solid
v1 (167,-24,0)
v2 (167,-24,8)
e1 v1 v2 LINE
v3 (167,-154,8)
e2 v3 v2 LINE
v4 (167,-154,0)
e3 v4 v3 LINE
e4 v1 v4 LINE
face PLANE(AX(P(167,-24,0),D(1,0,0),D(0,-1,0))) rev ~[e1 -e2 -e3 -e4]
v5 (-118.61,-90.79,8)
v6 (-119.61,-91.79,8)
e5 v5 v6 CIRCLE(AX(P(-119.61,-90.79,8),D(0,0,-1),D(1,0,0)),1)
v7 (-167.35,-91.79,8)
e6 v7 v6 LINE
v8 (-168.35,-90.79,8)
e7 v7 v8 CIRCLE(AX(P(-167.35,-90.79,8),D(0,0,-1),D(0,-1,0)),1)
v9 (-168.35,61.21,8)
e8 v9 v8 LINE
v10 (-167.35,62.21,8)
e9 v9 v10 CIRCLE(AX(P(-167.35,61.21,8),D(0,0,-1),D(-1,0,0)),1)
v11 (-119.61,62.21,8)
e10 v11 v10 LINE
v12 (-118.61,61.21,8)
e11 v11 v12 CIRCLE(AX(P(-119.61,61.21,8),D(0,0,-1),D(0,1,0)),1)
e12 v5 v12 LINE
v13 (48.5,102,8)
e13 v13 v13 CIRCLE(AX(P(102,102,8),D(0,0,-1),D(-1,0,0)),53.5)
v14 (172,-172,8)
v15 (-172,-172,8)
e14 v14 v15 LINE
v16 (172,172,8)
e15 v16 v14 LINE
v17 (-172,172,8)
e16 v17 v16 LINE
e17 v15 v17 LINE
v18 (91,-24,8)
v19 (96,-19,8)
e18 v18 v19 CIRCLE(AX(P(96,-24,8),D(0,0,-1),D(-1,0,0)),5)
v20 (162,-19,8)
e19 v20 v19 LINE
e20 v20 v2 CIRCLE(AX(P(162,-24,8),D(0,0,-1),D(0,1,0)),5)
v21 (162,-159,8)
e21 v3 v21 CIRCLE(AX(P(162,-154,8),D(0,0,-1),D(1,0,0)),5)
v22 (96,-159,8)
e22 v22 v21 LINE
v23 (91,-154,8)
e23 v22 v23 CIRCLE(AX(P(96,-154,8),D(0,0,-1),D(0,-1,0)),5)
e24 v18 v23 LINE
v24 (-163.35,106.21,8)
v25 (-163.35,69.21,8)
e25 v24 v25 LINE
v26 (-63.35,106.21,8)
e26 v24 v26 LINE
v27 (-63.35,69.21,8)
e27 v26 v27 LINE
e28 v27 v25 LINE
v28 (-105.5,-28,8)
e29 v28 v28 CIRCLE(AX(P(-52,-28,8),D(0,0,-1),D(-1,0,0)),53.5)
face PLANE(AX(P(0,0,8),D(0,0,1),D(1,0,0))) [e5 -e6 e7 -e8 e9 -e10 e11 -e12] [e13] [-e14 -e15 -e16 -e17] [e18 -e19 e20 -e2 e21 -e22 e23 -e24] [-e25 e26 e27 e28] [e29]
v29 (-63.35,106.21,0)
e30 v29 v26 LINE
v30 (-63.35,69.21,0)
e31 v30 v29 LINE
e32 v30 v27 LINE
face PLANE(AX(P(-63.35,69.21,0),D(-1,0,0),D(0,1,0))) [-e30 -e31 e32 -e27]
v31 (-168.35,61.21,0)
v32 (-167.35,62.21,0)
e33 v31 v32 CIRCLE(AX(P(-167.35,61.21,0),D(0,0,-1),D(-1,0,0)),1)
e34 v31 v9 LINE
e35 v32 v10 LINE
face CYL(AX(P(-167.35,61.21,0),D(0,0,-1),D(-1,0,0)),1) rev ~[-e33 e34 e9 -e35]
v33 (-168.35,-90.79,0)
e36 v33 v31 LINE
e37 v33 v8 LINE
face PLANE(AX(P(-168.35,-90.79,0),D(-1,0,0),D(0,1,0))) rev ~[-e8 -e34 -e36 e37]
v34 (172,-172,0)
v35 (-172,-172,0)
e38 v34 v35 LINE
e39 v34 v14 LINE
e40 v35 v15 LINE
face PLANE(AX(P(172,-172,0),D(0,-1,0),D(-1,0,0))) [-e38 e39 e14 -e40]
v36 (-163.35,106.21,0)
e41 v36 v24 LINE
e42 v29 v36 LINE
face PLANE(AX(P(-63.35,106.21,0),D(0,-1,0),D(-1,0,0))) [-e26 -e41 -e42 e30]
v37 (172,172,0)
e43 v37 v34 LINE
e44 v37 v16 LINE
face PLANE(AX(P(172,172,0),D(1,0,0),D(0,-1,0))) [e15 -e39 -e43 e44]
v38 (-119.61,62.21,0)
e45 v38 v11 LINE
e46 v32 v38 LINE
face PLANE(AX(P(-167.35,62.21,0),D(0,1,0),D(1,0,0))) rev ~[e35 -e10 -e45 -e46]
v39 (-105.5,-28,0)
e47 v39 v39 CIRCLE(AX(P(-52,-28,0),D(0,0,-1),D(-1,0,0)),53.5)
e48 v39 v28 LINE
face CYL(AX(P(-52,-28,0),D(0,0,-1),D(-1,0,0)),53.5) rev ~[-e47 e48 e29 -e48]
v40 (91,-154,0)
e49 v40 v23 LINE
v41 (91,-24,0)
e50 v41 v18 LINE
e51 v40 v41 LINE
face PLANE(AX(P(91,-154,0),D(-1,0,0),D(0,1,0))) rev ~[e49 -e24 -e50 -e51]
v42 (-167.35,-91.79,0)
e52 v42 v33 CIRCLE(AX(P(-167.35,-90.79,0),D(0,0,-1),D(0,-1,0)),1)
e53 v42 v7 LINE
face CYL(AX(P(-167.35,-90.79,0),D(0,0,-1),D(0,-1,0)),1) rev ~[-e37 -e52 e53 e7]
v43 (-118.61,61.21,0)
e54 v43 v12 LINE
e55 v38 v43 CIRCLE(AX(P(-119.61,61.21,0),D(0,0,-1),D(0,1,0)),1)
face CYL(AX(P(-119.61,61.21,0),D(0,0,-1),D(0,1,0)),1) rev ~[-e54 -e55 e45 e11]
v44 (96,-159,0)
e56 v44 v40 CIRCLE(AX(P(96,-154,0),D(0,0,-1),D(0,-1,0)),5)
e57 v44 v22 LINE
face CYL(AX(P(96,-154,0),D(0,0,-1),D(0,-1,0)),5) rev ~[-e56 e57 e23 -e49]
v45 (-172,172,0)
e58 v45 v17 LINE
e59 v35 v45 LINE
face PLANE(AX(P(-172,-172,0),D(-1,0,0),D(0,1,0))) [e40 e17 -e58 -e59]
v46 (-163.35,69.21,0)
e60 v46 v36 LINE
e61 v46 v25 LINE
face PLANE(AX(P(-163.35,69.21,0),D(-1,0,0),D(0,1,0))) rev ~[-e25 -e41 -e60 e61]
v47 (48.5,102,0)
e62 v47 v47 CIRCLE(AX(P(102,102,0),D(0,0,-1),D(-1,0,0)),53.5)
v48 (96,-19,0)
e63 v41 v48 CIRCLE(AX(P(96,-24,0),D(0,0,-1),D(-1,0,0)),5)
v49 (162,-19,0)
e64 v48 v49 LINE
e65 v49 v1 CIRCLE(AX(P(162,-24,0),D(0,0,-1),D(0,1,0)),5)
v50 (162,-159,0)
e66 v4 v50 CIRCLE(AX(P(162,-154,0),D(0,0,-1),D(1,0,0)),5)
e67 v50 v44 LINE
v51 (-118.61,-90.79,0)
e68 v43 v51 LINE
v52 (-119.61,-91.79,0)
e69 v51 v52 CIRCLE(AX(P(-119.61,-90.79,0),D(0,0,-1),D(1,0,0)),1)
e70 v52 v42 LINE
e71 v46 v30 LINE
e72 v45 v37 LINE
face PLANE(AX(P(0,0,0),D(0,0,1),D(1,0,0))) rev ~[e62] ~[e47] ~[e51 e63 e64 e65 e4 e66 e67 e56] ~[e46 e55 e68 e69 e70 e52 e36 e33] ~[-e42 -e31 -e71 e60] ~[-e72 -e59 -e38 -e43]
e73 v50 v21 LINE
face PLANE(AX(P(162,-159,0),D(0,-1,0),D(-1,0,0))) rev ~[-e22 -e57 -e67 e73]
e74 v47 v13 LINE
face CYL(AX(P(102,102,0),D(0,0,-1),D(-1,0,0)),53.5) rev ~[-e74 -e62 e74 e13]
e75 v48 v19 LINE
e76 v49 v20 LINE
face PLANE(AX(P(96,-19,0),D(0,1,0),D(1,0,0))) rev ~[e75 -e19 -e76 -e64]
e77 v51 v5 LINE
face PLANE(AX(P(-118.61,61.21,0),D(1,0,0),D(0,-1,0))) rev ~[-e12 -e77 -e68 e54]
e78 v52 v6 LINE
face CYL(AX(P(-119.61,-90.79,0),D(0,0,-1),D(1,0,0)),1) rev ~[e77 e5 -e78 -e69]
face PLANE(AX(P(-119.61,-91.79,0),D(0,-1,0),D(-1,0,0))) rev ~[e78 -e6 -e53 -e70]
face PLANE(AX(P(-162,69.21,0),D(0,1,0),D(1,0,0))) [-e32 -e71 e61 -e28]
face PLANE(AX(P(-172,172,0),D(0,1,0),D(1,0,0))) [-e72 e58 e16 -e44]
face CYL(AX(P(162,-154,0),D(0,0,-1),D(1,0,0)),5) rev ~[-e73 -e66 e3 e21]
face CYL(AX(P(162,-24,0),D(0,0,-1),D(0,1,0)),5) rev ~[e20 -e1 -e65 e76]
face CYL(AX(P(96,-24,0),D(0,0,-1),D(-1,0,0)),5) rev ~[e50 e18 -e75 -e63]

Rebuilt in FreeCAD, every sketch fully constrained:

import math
import FreeCAD as App
import Part
import Sketcher
from FreeCAD import Vector
Q = App.Units.Quantity

doc = App.newDocument("Part")
body = doc.addObject("PartDesign::Body", "Body")

# Sketch on XY plane
sketch1 = body.newObject("Sketcher::SketchObject", "Sketch")
sketch1.AttachmentSupport = (doc.getObject("XY_Plane"), [""])
sketch1.MapMode = "FlatFace"
sketch1.addGeometry(Part.LineSegment(Vector(172, 172, 0), Vector(-172, 172, 0)), False)
sketch1.addGeometry(Part.LineSegment(Vector(-172, 172, 0), Vector(-172, -172, 0)), False)
sketch1.addGeometry(Part.LineSegment(Vector(-172, -172, 0), Vector(172, -172, 0)), False)
sketch1.addGeometry(Part.LineSegment(Vector(172, -172, 0), Vector(172, 172, 0)), False)
sketch1.addConstraint(Sketcher.Constraint("Coincident", 0, 2, 1, 1))
sketch1.addConstraint(Sketcher.Constraint("Coincident", 1, 2, 2, 1))
sketch1.addConstraint(Sketcher.Constraint("Coincident", 2, 2, 3, 1))
sketch1.addConstraint(Sketcher.Constraint("Coincident", 3, 2, 0, 1))
sketch1.addConstraint(Sketcher.Constraint("Horizontal", 0))
sketch1.addConstraint(Sketcher.Constraint("Vertical", 1))
sketch1.addConstraint(Sketcher.Constraint("Horizontal", 2))
sketch1.addConstraint(Sketcher.Constraint("Vertical", 3))
sketch1.addConstraint(Sketcher.Constraint("Symmetric", 0, 2, 2, 2, -1, 1))
sketch1.addConstraint(Sketcher.Constraint("Equal", 2, 1))
sketch1.addConstraint(Sketcher.Constraint("DistanceX", 0, 2, 0, 1, Q("344 mm")))
pad1 = body.newObject("PartDesign::Pad", "Pad")
pad1.Profile = sketch1
pad1.Length = 8

# Sketch on XY plane
sketch2 = body.newObject("Sketcher::SketchObject", "Sketch001")
sketch2.AttachmentSupport = (doc.getObject("XY_Plane"), [""])
sketch2.MapMode = "FlatFace"
sketch2.addGeometry(Part.Circle(Vector(102, 102, 0), Vector(0, 0, 1), 53.5), False)
sketch2.addGeometry(Part.Circle(Vector(-52, -28, 0), Vector(0, 0, 1), 53.5), False)
sketch2.addConstraint(Sketcher.Constraint("Equal", 0, 1))
sketch2.addConstraint(Sketcher.Constraint("Diameter", 0, Q("107 mm")))
sketch2.addConstraint(Sketcher.Constraint("DistanceX", -1, 1, 0, 3, Q("102 mm")))
sketch2.addConstraint(Sketcher.Constraint("DistanceY", -1, 1, 0, 3, Q("102 mm")))
sketch2.addConstraint(Sketcher.Constraint("DistanceX", 1, 3, -1, 1, Q("52 mm")))
sketch2.addConstraint(Sketcher.Constraint("DistanceY", 1, 3, -1, 1, Q("28 mm")))
pocket1 = body.newObject("PartDesign::Pocket", "Pocket")
pocket1.Profile = sketch2
pocket1.Type = "ThroughAll"
pocket1.Reversed = True

# Sketch on XY plane
sketch3 = body.newObject("Sketcher::SketchObject", "Sketch002")
sketch3.AttachmentSupport = (doc.getObject("XY_Plane"), [""])
sketch3.MapMode = "FlatFace"
sketch3.addGeometry(Part.ArcOfCircle(Part.Circle(Vector(-119.61, 61.21, 0), Vector(0, 0, 1), 1), math.radians(0), math.radians(90)), False)
sketch3.addGeometry(Part.LineSegment(Vector(-118.61, 61.21, 0), Vector(-118.61, -90.79, 0)), False)
sketch3.addGeometry(Part.ArcOfCircle(Part.Circle(Vector(-119.61, -90.79, 0), Vector(0, 0, 1), 1), math.radians(-90), math.radians(0)), False)
sketch3.addGeometry(Part.LineSegment(Vector(-119.61, -91.79, 0), Vector(-167.35, -91.79, 0)), False)
sketch3.addGeometry(Part.ArcOfCircle(Part.Circle(Vector(-167.35, -90.79, 0), Vector(0, 0, 1), 1), math.radians(180), math.radians(270)), False)
sketch3.addGeometry(Part.LineSegment(Vector(-168.35, -90.79, 0), Vector(-168.35, 61.21, 0)), False)
sketch3.addGeometry(Part.ArcOfCircle(Part.Circle(Vector(-167.35, 61.21, 0), Vector(0, 0, 1), 1), math.radians(90), math.radians(180)), False)
sketch3.addGeometry(Part.LineSegment(Vector(-167.35, 62.21, 0), Vector(-119.61, 62.21, 0)), False)
sketch3.addGeometry(Part.LineSegment(Vector(-63.35, 69.21, 0), Vector(-163.35, 69.21, 0)), False)
sketch3.addGeometry(Part.LineSegment(Vector(-163.35, 69.21, 0), Vector(-163.35, 106.21, 0)), False)
sketch3.addGeometry(Part.LineSegment(Vector(-163.35, 106.21, 0), Vector(-63.35, 106.21, 0)), False)
sketch3.addGeometry(Part.LineSegment(Vector(-63.35, 106.21, 0), Vector(-63.35, 69.21, 0)), False)
sketch3.addConstraint(Sketcher.Constraint("Tangent", 0, 1, 1, 1))
sketch3.addConstraint(Sketcher.Constraint("Tangent", 1, 2, 2, 2))
sketch3.addConstraint(Sketcher.Constraint("Tangent", 2, 1, 3, 1))
sketch3.addConstraint(Sketcher.Constraint("Tangent", 3, 2, 4, 2))
sketch3.addConstraint(Sketcher.Constraint("Tangent", 4, 1, 5, 1))
sketch3.addConstraint(Sketcher.Constraint("Tangent", 5, 2, 6, 2))
sketch3.addConstraint(Sketcher.Constraint("Tangent", 6, 1, 7, 1))
sketch3.addConstraint(Sketcher.Constraint("Tangent", 7, 2, 0, 2))
sketch3.addConstraint(Sketcher.Constraint("Coincident", 8, 2, 9, 1))
sketch3.addConstraint(Sketcher.Constraint("Coincident", 9, 2, 10, 1))
sketch3.addConstraint(Sketcher.Constraint("Coincident", 10, 2, 11, 1))
sketch3.addConstraint(Sketcher.Constraint("Coincident", 11, 2, 8, 1))
sketch3.addConstraint(Sketcher.Constraint("Vertical", 1))
sketch3.addConstraint(Sketcher.Constraint("Horizontal", 3))
sketch3.addConstraint(Sketcher.Constraint("Vertical", 5))
sketch3.addConstraint(Sketcher.Constraint("Horizontal", 7))
sketch3.addConstraint(Sketcher.Constraint("Horizontal", 8))
sketch3.addConstraint(Sketcher.Constraint("Vertical", 9))
sketch3.addConstraint(Sketcher.Constraint("Horizontal", 10))
sketch3.addConstraint(Sketcher.Constraint("Vertical", 11))
sketch3.addConstraint(Sketcher.Constraint("Equal", 0, 2))
sketch3.addConstraint(Sketcher.Constraint("Equal", 2, 4))
sketch3.addConstraint(Sketcher.Constraint("Equal", 4, 6))
sketch3.addConstraint(Sketcher.Constraint("Radius", 0, Q("1 mm")))
sketch3.addConstraint(Sketcher.Constraint("DistanceX", 8, 2, 8, 1, Q("100 mm")))
sketch3.addConstraint(Sketcher.Constraint("DistanceY", 1, 2, 1, 1, Q("152 mm")))
sketch3.addConstraint(Sketcher.Constraint("DistanceY", 9, 1, 9, 2, Q("37 mm")))
sketch3.addConstraint(Sketcher.Constraint("DistanceX", 6, 1, 8, 2, Q("4 mm")))
sketch3.addConstraint(Sketcher.Constraint("DistanceY", 6, 1, 8, 2, Q("7 mm")))
sketch3.addConstraint(Sketcher.Constraint("DistanceX", 3, 2, 3, 1, Q("47.74 mm")))
sketch3.addConstraint(Sketcher.Constraint("DistanceX", 0, 3, -1, 1, Q("119.61 mm")))
sketch3.addConstraint(Sketcher.Constraint("DistanceY", -1, 1, 0, 3, Q("61.21 mm")))
pocket2 = body.newObject("PartDesign::Pocket", "Pocket001")
pocket2.Profile = sketch3
pocket2.Type = "ThroughAll"
pocket2.Reversed = True

# Sketch on XY plane
sketch4 = body.newObject("Sketcher::SketchObject", "Sketch003")
sketch4.AttachmentSupport = (doc.getObject("XY_Plane"), [""])
sketch4.MapMode = "FlatFace"
sketch4.addGeometry(Part.ArcOfCircle(Part.Circle(Vector(96, -154, 0), Vector(0, 0, 1), 5), math.radians(180), math.radians(270)), False)
sketch4.addGeometry(Part.LineSegment(Vector(91, -154, 0), Vector(91, -24, 0)), False)
sketch4.addGeometry(Part.ArcOfCircle(Part.Circle(Vector(96, -24, 0), Vector(0, 0, 1), 5), math.radians(90), math.radians(180)), False)
sketch4.addGeometry(Part.LineSegment(Vector(96, -19, 0), Vector(162, -19, 0)), False)
sketch4.addGeometry(Part.ArcOfCircle(Part.Circle(Vector(162, -24, 0), Vector(0, 0, 1), 5), math.radians(0), math.radians(90)), False)
sketch4.addGeometry(Part.LineSegment(Vector(167, -24, 0), Vector(167, -154, 0)), False)
sketch4.addGeometry(Part.ArcOfCircle(Part.Circle(Vector(162, -154, 0), Vector(0, 0, 1), 5), math.radians(-90), math.radians(0)), False)
sketch4.addGeometry(Part.LineSegment(Vector(162, -159, 0), Vector(96, -159, 0)), False)
sketch4.addConstraint(Sketcher.Constraint("Tangent", 0, 1, 1, 1))
sketch4.addConstraint(Sketcher.Constraint("Tangent", 1, 2, 2, 2))
sketch4.addConstraint(Sketcher.Constraint("Tangent", 2, 1, 3, 1))
sketch4.addConstraint(Sketcher.Constraint("Tangent", 3, 2, 4, 2))
sketch4.addConstraint(Sketcher.Constraint("Tangent", 4, 1, 5, 1))
sketch4.addConstraint(Sketcher.Constraint("Tangent", 5, 2, 6, 2))
sketch4.addConstraint(Sketcher.Constraint("Tangent", 6, 1, 7, 1))
sketch4.addConstraint(Sketcher.Constraint("Tangent", 7, 2, 0, 2))
sketch4.addConstraint(Sketcher.Constraint("Vertical", 1))
sketch4.addConstraint(Sketcher.Constraint("Horizontal", 3))
sketch4.addConstraint(Sketcher.Constraint("Vertical", 5))
sketch4.addConstraint(Sketcher.Constraint("Horizontal", 7))
sketch4.addConstraint(Sketcher.Constraint("Equal", 0, 2))
sketch4.addConstraint(Sketcher.Constraint("Equal", 2, 4))
sketch4.addConstraint(Sketcher.Constraint("Equal", 4, 6))
sketch4.addConstraint(Sketcher.Constraint("Radius", 0, Q("5 mm")))
sketch4.addConstraint(Sketcher.Constraint("DistanceX", 3, 1, 3, 2, Q("66 mm")))
sketch4.addConstraint(Sketcher.Constraint("DistanceY", 1, 1, 1, 2, Q("130 mm")))
sketch4.addConstraint(Sketcher.Constraint("DistanceX", -1, 1, 0, 3, Q("96 mm")))
sketch4.addConstraint(Sketcher.Constraint("DistanceY", 0, 3, -1, 1, Q("154 mm")))
pocket3 = body.newObject("PartDesign::Pocket", "Pocket002")
pocket3.Profile = sketch4
pocket3.Type = "ThroughAll"
pocket3.Reversed = True

doc.recompute()
